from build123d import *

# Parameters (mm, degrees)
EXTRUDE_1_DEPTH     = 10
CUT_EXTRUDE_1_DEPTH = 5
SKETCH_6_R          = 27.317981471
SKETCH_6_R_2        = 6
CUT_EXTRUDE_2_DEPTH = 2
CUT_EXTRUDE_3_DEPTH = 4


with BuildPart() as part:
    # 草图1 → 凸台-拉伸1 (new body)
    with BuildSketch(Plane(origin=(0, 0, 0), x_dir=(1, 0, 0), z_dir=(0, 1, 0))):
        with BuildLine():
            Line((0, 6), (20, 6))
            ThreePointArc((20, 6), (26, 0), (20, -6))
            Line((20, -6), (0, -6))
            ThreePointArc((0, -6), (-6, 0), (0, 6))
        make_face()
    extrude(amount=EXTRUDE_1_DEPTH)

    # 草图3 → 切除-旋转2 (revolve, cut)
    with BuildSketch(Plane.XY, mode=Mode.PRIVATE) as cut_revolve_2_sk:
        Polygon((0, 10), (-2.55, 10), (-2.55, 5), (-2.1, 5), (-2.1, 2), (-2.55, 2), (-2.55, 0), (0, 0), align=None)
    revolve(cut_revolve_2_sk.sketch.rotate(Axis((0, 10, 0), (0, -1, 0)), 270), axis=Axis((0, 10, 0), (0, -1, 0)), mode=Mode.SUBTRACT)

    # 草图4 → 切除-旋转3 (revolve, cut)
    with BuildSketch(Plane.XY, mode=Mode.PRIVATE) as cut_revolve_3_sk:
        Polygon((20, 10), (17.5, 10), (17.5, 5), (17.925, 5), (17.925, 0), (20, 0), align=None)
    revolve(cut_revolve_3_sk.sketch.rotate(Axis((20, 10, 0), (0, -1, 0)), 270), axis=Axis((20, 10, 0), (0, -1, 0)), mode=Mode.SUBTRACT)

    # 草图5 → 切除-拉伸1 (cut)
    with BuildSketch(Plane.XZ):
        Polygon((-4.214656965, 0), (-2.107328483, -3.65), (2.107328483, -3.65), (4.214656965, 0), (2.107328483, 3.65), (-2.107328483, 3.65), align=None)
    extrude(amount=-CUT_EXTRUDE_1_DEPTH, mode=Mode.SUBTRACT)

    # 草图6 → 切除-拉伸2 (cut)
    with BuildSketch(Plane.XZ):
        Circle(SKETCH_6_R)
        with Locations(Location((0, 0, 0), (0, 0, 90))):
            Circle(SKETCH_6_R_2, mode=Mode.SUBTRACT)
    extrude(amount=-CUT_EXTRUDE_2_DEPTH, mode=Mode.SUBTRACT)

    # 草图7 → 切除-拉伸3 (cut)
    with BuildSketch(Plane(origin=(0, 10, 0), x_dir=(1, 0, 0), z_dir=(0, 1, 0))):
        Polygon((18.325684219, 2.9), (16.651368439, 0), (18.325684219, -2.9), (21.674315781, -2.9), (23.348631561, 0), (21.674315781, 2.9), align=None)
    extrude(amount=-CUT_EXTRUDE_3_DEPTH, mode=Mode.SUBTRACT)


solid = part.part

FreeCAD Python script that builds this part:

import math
import FreeCAD as App
import Part
import Sketcher
Q = App.Units.Quantity

doc = App.newDocument("Part")
body = doc.addObject("PartDesign::Body", "Body")

# Sketch on XZ plane
sketch1 = body.newObject("Sketcher::SketchObject", "Sketch")
sketch1.AttachmentSupport = (doc.getObject("XZ_Plane"), [""])
sketch1.MapMode = "FlatFace"
sketch1.addGeometry([
    Part.LineSegment(App.Vector(20, -6, 0), App.Vector(0, -6, 0)),
    Part.ArcOfCircle(Part.Circle(App.Vector(0, 0, 0), App.Vector(0, 0, 1), 6), math.radians(90), math.radians(270)),
    Part.LineSegment(App.Vector(0, 6, 0), App.Vector(20, 6, 0)),
    Part.ArcOfCircle(Part.Circle(App.Vector(20, 0, 0), App.Vector(0, 0, 1), 6), math.radians(-90), math.radians(90)),
], False)
sketch1.addConstraint([
    Sketcher.Constraint("Tangent", 0, 2, 1, 2),
    Sketcher.Constraint("Tangent", 1, 1, 2, 1),
    Sketcher.Constraint("Tangent", 2, 2, 3, 2),
    Sketcher.Constraint("Tangent", 3, 1, 0, 1),
    Sketcher.Constraint("Horizontal", 0),
    Sketcher.Constraint("Horizontal", 2),
    Sketcher.Constraint("Coincident", 1, 3, -1, 1),
    Sketcher.Constraint("Radius", 1, 6.0),
    Sketcher.Constraint("DistanceX", 0, 2, 0, 1, 20.0),
])
pad1 = body.newObject("PartDesign::Pad", "Pad")
pad1.Profile = sketch1
pad1.Length = 10
pad1.Reversed = True

# Sketch on XY plane
sketch2 = body.newObject("Sketcher::SketchObject", "Sketch001")
sketch2.AttachmentSupport = (doc.getObject("XY_Plane"), [""])
sketch2.MapMode = "FlatFace"
sketch2.addGeometry([
    Part.LineSegment(App.Vector(0, 10, 0), App.Vector(-2.55, 10, 0)),  # 0
    Part.LineSegment(App.Vector(-2.55, 10, 0), App.Vector(-2.55, 5, 0)),  # 1
    Part.LineSegment(App.Vector(-2.55, 5, 0), App.Vector(-2.1, 5, 0)),  # 2
    Part.LineSegment(App.Vector(-2.1, 5, 0), App.Vector(-2.1, 2, 0)),  # 3
    Part.LineSegment(App.Vector(-2.1, 2, 0), App.Vector(-2.55, 2, 0)),  # 4
    Part.LineSegment(App.Vector(-2.55, 2, 0), App.Vector(-2.55, 0, 0)),  # 5
    Part.LineSegment(App.Vector(-2.55, 0, 0), App.Vector(0, 0, 0)),  # 6
    Part.LineSegment(App.Vector(0, 0, 0), App.Vector(0, 10, 0)),  # 7
], False)
sketch2.addConstraint([
    Sketcher.Constraint("Coincident", 0, 2, 1, 1),
    Sketcher.Constraint("Coincident", 1, 2, 2, 1),
    Sketcher.Constraint("Coincident", 2, 2, 3, 1),
    Sketcher.Constraint("Coincident", 3, 2, 4, 1),
    Sketcher.Constraint("Coincident", 4, 2, 5, 1),
    Sketcher.Constraint("Coincident", 5, 2, 6, 1),
    Sketcher.Constraint("Coincident", 6, 2, 7, 1),
    Sketcher.Constraint("Coincident", 7, 2, 0, 1),
    Sketcher.Constraint("Horizontal", 0),
    Sketcher.Constraint("Vertical", 1),
    Sketcher.Constraint("Horizontal", 2),
    Sketcher.Constraint("Vertical", 3),
    Sketcher.Constraint("Horizontal", 4),
    Sketcher.Constraint("Vertical", 5),
    Sketcher.Constraint("Horizontal", 6),
    Sketcher.Constraint("Vertical", 7),
    Sketcher.Constraint("Coincident", 6, 2, -1, 1),
    Sketcher.Constraint("Vertical", 1, 2, 4, 2),
    Sketcher.Constraint("DistanceY", 1, 2, 1, 1, 5.0),
    Sketcher.Constraint("DistanceY", 3, 2, 3, 1, 3.0),
    Sketcher.Constraint("DistanceY", 5, 2, 5, 1, 2.0),
    Sketcher.Constraint("DistanceX", 0, 2, 0, 1, 2.55),
    Sketcher.Constraint("DistanceX", 2, 1, 2, 2, 0.45),
])
groove = body.newObject("PartDesign::Groove", "Groove")
groove.Profile = sketch2
groove.ReferenceAxis = (sketch2, ["V_Axis"])
groove.Angle = 360

# Sketch on XY plane
sketch3 = body.newObject("Sketcher::SketchObject", "Sketch002")
sketch3.AttachmentSupport = (doc.getObject("XY_Plane"), [""])
sketch3.MapMode = "FlatFace"
sketch3.addGeometry([
    Part.LineSegment(App.Vector(20, 10, 0), App.Vector(17.5, 10, 0)),  # 0
    Part.LineSegment(App.Vector(17.5, 10, 0), App.Vector(17.5, 5, 0)),  # 1
    Part.LineSegment(App.Vector(17.5, 5, 0), App.Vector(17.925, 5, 0)),  # 2
    Part.LineSegment(App.Vector(17.925, 5, 0), App.Vector(17.925, 0, 0)),  # 3
    Part.LineSegment(App.Vector(17.925, 0, 0), App.Vector(20, 0, 0)),  # 4
    Part.LineSegment(App.Vector(20, 0, 0), App.Vector(20, 10, 0)),  # 5
], False)
sketch3.addGeometry(Part.LineSegment(App.Vector(20, 10, 0), App.Vector(20, 0, 0)), True)  # axis
sketch3.addConstraint([
    Sketcher.Constraint("Coincident", 0, 2, 1, 1),
    Sketcher.Constraint("Coincident", 1, 2, 2, 1),
    Sketcher.Constraint("Coincident", 2, 2, 3, 1),
    Sketcher.Constraint("Coincident", 3, 2, 4, 1),
    Sketcher.Constraint("Coincident", 4, 2, 5, 1),
    Sketcher.Constraint("Coincident", 5, 2, 0, 1),
    Sketcher.Constraint("Horizontal", 0),
    Sketcher.Constraint("Vertical", 1),
    Sketcher.Constraint("Horizontal", 2),
    Sketcher.Constraint("Vertical", 3),
    Sketcher.Constraint("Horizontal", 4),
    Sketcher.Constraint("Vertical", 5),
    Sketcher.Constraint("Vertical", 6),
    Sketcher.Constraint("Coincident", 6, 1, 5, 2),
    Sketcher.Constraint("PointOnObject", 3, 2, -1),
    Sketcher.Constraint("PointOnObject", 6, 2, -1),
    Sketcher.Constraint("Equal", 1, 3),
    Sketcher.Constraint("DistanceY", 1, 2, 1, 1, 5.0),
    Sketcher.Constraint("DistanceX", 0, 2, 0, 1, 2.5),
    Sketcher.Constraint("DistanceX", -1, 1, 4, 2, 20.0),
    Sketcher.Constraint("DistanceX", 2, 1, 2, 2, 0.425),
])
groove2 = body.newObject("PartDesign::Groove", "Groove001")
groove2.Profile = sketch3
groove2.ReferenceAxis = (sketch3, ["Axis0"])
groove2.Angle = 360

# Sketch on XZ plane
sketch4 = body.newObject("Sketcher::SketchObject", "Sketch003")
sketch4.AttachmentSupport = (doc.getObject("XZ_Plane"), [""])
sketch4.MapMode = "FlatFace"
sketch4.addGeometry([
    Part.LineSegment(App.Vector(-4.214657, 0, 0), App.Vector(-2.107328, -3.65, 0)),  # 0
    Part.LineSegment(App.Vector(-2.107328, -3.65, 0), App.Vector(2.107328, -3.65, 0)),  # 1
    Part.LineSegment(App.Vector(2.107328, -3.65, 0), App.Vector(4.214657, 0, 0)),  # 2
    Part.LineSegment(App.Vector(4.214657, 0, 0), App.Vector(2.107328, 3.65, 0)),  # 3
    Part.LineSegment(App.Vector(2.107328, 3.65, 0), App.Vector(-2.107328, 3.65, 0)),  # 4
    Part.LineSegment(App.Vector(-2.107328, 3.65, 0), App.Vector(-4.214657, 0, 0)),  # 5
], False)
sketch4.addConstraint([
    Sketcher.Constraint("Coincident", 0, 2, 1, 1),
    Sketcher.Constraint("Coincident", 1, 2, 2, 1),
    Sketcher.Constraint("Coincident", 2, 2, 3, 1),
    Sketcher.Constraint("Coincident", 3, 2, 4, 1),
    Sketcher.Constraint("Coincident", 4, 2, 5, 1),
    Sketcher.Constraint("Coincident", 5, 2, 0, 1),
    Sketcher.Constraint("Horizontal", 1),
    Sketcher.Constraint("Horizontal", 4),
    Sketcher.Constraint("Symmetric", 0, 2, 3, 2, -1, 1),
    Sketcher.Constraint("Symmetric", 2, 2, 5, 2, -1, 1),
    Sketcher.Constraint("PointOnObject", 2, 2, -1),
    Sketcher.Constraint("Parallel", 2, 5),
    Sketcher.Constraint("Vertical", 1, 2, 3, 2),
    Sketcher.Constraint("Angle", 0, Q("-60 deg")),
    Sketcher.Constraint("DistanceY", 1, 2, 3, 2, 7.3),
    Sketcher.Constraint("DistanceX", 1, 1, 1, 2, 4.214657),
])
pocket1 = body.newObject("PartDesign::Pocket", "Pocket")
pocket1.Profile = sketch4
pocket1.Length = 5

# Sketch on XZ plane
sketch5 = body.newObject("Sketcher::SketchObject", "Sketch004")
sketch5.AttachmentSupport = (doc.getObject("XZ_Plane"), [""])
sketch5.MapMode = "FlatFace"
sketch5.addGeometry([
    Part.Circle(App.Vector(0, 0, 0), App.Vector(0, 0, 1), 27.317981),
    Part.Circle(App.Vector(0, 0, 0), App.Vector(0, 0, 1), 6),
], False)
sketch5.addConstraint([
    Sketcher.Constraint("Coincident", 0, 3, -1, 1),
    Sketcher.Constraint("Coincident", 1, 3, -1, 1),
    Sketcher.Constraint("Diameter", 1, 12.0),
    Sketcher.Constraint("Diameter", 0, 54.635963),
])
pocket2 = body.newObject("PartDesign::Pocket", "Pocket001")
pocket2.Profile = sketch5
pocket2.Length = 2

# Sketch on XZ plane
sketch6 = body.newObject("Sketcher::SketchObject", "Sketch005")
sketch6.AttachmentSupport = (doc.getObject("XZ_Plane"), [""])
sketch6.MapMode = "FlatFace"
sketch6.AttachmentOffset = App.Placement(App.Vector(0, 0, -10), App.Rotation())
sketch6.addGeometry([
    Part.LineSegment(App.Vector(18.325684, -2.9, 0), App.Vector(16.651368, 0, 0)),  # 0
    Part.LineSegment(App.Vector(16.651368, 0, 0), App.Vector(18.325684, 2.9, 0)),  # 1
    Part.LineSegment(App.Vector(18.325684, 2.9, 0), App.Vector(21.674316, 2.9, 0)),  # 2
    Part.LineSegment(App.Vector(21.674316, 2.9, 0), App.Vector(23.348632, 0, 0)),  # 3
    Part.LineSegment(App.Vector(23.348632, 0, 0), App.Vector(21.674316, -2.9, 0)),  # 4
    Part.LineSegment(App.Vector(21.674316, -2.9, 0), App.Vector(18.325684, -2.9, 0)),  # 5
], False)
sketch6.addConstraint([
    Sketcher.Constraint("Coincident", 0, 2, 1, 1),
    Sketcher.Constraint("Coincident", 1, 2, 2, 1),
    Sketcher.Constraint("Coincident", 2, 2, 3, 1),
    Sketcher.Constraint("Coincident", 3, 2, 4, 1),
    Sketcher.Constraint("Coincident", 4, 2, 5, 1),
    Sketcher.Constraint("Coincident", 5, 2, 0, 1),
    Sketcher.Constraint("Horizontal", 2),
    Sketcher.Constraint("Horizontal", 5),
    Sketcher.Constraint("Symmetric", 2, 2, 4, 2, -1),
    Sketcher.Constraint("PointOnObject", 0, 2, -1),
    Sketcher.Constraint("PointOnObject", 3, 2, -1),
    Sketcher.Constraint("Parallel", 0, 3),
    Sketcher.Constraint("Parallel", 1, 4),
    Sketcher.Constraint("Angle", 0, Q("120 deg")),
    Sketcher.Constraint("DistanceY", -1, 1, 1, 2, 2.9),
    Sketcher.Constraint("DistanceX", 2, 1, 2, 2, 3.348632),
    Sketcher.Constraint("DistanceX", -1, 1, 0, 2, 16.651368),
])
pocket3 = body.newObject("PartDesign::Pocket", "Pocket002")
pocket3.Profile = sketch6
pocket3.Length = 4
pocket3.Reversed = True

doc.recompute()
